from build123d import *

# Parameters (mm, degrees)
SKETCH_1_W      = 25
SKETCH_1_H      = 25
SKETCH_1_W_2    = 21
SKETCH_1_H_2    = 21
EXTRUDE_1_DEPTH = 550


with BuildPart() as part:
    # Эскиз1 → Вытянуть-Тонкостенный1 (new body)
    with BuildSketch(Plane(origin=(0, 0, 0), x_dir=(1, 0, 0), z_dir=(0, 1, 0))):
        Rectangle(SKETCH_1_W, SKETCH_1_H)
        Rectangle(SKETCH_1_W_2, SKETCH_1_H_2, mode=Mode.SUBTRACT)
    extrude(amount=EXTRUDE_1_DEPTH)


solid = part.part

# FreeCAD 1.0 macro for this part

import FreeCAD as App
import Part
import Sketcher
Q = App.Units.Quantity

doc = App.newDocument("Part")
params = doc.addObject("Spreadsheet::Sheet", "Params")
for row, (alias, value) in enumerate([
    ("sketch1_width", "25 mm"),
    ("sketch1_width2", "21 mm"),
    ("pad1_length", "550 mm"),
], start=1):
    params.set(f"A{row}", alias)
    params.set(f"B{row}", "=" + value)
    params.setAlias(f"B{row}", alias)

body = doc.addObject("PartDesign::Body", "Body")

# Sketch on XZ plane
sketch1 = doc.addObject("Sketcher::SketchObject", "Sketch")
body.addObject(sketch1)
sketch1.AttachmentSupport = (doc.XZ_Plane, [""])
sketch1.MapMode = "FlatFace"
sketch1.addGeometry([
    Part.LineSegment(App.Vector(-12, -12, 0), App.Vector(-12, 12, 0)),  # 0
    Part.LineSegment(App.Vector(-12, 12, 0), App.Vector(12, 12, 0)),  # 1
    Part.LineSegment(App.Vector(12, 12, 0), App.Vector(12, -12, 0)),  # 2
    Part.LineSegment(App.Vector(12, -12, 0), App.Vector(-12, -12, 0)),  # 3
    Part.LineSegment(App.Vector(10, 10, 0), App.Vector(-10, 10, 0)),  # 4
    Part.LineSegment(App.Vector(-10, 10, 0), App.Vector(-10, -10, 0)),  # 5
    Part.LineSegment(App.Vector(-10, -10, 0), App.Vector(10, -10, 0)),  # 6
    Part.LineSegment(App.Vector(10, -10, 0), App.Vector(10, 10, 0)),  # 7
], False)
sketch1.addConstraint([
    Sketcher.Constraint("Coincident", 0, 2, 1, 1),
    Sketcher.Constraint("Coincident", 1, 2, 2, 1),
    Sketcher.Constraint("Coincident", 2, 2, 3, 1),
    Sketcher.Constraint("Coincident", 3, 2, 0, 1),
    Sketcher.Constraint("Coincident", 4, 2, 5, 1),
    Sketcher.Constraint("Coincident", 5, 2, 6, 1),
    Sketcher.Constraint("Coincident", 6, 2, 7, 1),
    Sketcher.Constraint("Coincident", 7, 2, 4, 1),
    Sketcher.Constraint("Vertical", 0),
    Sketcher.Constraint("Horizontal", 1),
    Sketcher.Constraint("Vertical", 2),
    Sketcher.Constraint("Horizontal", 3),
    Sketcher.Constraint("Horizontal", 4),
    Sketcher.Constraint("Vertical", 5),
    Sketcher.Constraint("Horizontal", 6),
    Sketcher.Constraint("Vertical", 7),
    Sketcher.Constraint("Symmetric", 0, 2, 2, 2, -1, 1),
    Sketcher.Constraint("Symmetric", 4, 2, 6, 2, -1, 1),
    Sketcher.Constraint("Equal", 3, 0),
    Sketcher.Constraint("Equal", 6, 5),
    Sketcher.Constraint("DistanceX", 1, 1, 1, 2, Q("25 mm")),
    Sketcher.Constraint("DistanceX", 4, 2, 4, 1, Q("21 mm")),
])
sketch1.setExpression("Constraints[20]", "Params.sketch1_width")
sketch1.setExpression("Constraints[21]", "Params.sketch1_width2")
pad1 = doc.addObject("PartDesign::Pad", "Pad")
body.addObject(pad1)
pad1.Profile = sketch1
pad1.setExpression("Length", "Params.pad1_length")
pad1.Reversed = True

doc.recompute()
